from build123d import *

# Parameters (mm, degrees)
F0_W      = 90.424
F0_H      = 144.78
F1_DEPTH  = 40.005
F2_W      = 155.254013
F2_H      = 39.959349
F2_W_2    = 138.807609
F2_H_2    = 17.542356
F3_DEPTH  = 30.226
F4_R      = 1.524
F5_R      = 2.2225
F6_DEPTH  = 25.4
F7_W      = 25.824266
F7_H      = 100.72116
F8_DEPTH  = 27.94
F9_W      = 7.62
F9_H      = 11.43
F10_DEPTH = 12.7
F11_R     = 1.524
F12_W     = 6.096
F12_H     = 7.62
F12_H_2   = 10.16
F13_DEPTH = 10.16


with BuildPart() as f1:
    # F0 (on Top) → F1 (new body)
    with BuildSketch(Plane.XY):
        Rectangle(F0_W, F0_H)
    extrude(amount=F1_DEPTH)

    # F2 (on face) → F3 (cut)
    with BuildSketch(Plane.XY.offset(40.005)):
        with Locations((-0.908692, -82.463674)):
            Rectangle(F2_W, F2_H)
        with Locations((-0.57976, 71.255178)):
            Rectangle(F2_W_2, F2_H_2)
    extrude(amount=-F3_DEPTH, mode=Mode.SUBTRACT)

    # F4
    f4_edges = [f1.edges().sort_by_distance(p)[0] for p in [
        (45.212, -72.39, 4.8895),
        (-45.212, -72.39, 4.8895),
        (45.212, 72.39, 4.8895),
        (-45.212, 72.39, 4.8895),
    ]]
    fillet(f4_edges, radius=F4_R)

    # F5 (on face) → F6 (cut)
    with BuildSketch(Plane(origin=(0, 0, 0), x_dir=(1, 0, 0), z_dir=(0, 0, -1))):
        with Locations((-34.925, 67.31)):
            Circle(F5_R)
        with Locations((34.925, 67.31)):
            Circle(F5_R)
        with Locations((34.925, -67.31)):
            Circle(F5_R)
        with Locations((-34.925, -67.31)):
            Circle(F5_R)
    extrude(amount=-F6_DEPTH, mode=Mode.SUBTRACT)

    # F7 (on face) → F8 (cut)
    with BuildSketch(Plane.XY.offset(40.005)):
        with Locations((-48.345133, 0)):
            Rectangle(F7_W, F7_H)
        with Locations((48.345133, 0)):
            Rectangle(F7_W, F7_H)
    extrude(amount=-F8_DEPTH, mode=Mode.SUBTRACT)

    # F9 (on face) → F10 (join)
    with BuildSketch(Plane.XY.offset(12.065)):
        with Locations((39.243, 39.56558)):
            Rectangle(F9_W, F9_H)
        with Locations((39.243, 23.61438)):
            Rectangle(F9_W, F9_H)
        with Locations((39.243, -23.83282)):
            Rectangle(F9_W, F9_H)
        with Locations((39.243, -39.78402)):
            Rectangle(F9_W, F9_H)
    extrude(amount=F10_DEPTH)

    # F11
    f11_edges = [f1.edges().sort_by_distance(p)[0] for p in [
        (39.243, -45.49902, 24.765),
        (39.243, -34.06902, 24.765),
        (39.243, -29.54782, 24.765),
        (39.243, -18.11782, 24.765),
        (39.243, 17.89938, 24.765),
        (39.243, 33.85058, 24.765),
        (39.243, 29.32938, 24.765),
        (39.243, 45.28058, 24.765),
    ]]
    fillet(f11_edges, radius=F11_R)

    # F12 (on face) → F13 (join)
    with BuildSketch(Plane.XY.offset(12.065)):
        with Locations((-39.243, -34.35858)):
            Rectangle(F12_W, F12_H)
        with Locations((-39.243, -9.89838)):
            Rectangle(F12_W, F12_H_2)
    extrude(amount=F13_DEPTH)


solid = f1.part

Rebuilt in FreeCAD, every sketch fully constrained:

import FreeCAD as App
import Part
import Sketcher
from FreeCAD import Vector
Q = App.Units.Quantity


def edges_at(feature, points):
    """Names of the edges that pass closest to the given points."""
    edges = feature.Shape.Edges
    near = lambda p: min(range(len(edges)), key=lambda i: edges[i].distToShape(Part.Vertex(*p))[0])
    return sorted({f"Edge{near(p) + 1}" for p in points})

doc = App.newDocument("Part")
body = doc.addObject("PartDesign::Body", "Body")

sketch1 = body.newObject("Sketcher::SketchObject", "Sketch")
sketch1.AttachmentSupport = (doc.getObject("XY_Plane"), [""])
sketch1.MapMode = "FlatFace"
sketch1.addGeometry(Part.LineSegment(Vector(-45, 72, 0), Vector(-45, -72, 0)), False)
sketch1.addGeometry(Part.LineSegment(Vector(-45, -72, 0), Vector(45, -72, 0)), False)
sketch1.addGeometry(Part.LineSegment(Vector(45, -72, 0), Vector(45, 72, 0)), False)
sketch1.addGeometry(Part.LineSegment(Vector(45, 72, 0), Vector(-45, 72, 0)), False)
sketch1.addConstraint(Sketcher.Constraint("Coincident", 0, 2, 1, 1))
sketch1.addConstraint(Sketcher.Constraint("Coincident", 1, 2, 2, 1))
sketch1.addConstraint(Sketcher.Constraint("Coincident", 2, 2, 3, 1))
sketch1.addConstraint(Sketcher.Constraint("Coincident", 3, 2, 0, 1))
sketch1.addConstraint(Sketcher.Constraint("Vertical", 0))
sketch1.addConstraint(Sketcher.Constraint("Horizontal", 1))
sketch1.addConstraint(Sketcher.Constraint("Vertical", 2))
sketch1.addConstraint(Sketcher.Constraint("Horizontal", 3))
sketch1.addConstraint(Sketcher.Constraint("Symmetric", 0, 2, 2, 2, -1, 1))
sketch1.addConstraint(Sketcher.Constraint("DistanceY", 0, 2, 0, 1, Q("5.7 in")))
sketch1.addConstraint(Sketcher.Constraint("DistanceX", 1, 1, 1, 2, Q("3.56 in")))
pad1 = body.newObject("PartDesign::Pad", "Pad")
pad1.Profile = sketch1
pad1.Length = Q("1.575 in")

sketch2 = body.newObject("Sketcher::SketchObject", "Sketch001")
sketch2.AttachmentSupport = (doc.getObject("XY_Plane"), [""])
sketch2.MapMode = "FlatFace"
sketch2.AttachmentOffset = App.Placement(Vector(0, 0, 1.575 * 25.4), App.Rotation())
sketch2.addGeometry(Part.LineSegment(Vector(-79, -62, 0), Vector(-79, -102, 0)), False)
sketch2.addGeometry(Part.LineSegment(Vector(-79, -102, 0), Vector(77, -102, 0)), False)
sketch2.addGeometry(Part.LineSegment(Vector(77, -102, 0), Vector(77, -62, 0)), False)
sketch2.addGeometry(Part.LineSegment(Vector(77, -62, 0), Vector(-79, -62, 0)), False)
sketch2.addGeometry(Part.LineSegment(Vector(-70, 80, 0), Vector(-70, 62, 0)), False)
sketch2.addGeometry(Part.LineSegment(Vector(-70, 62, 0), Vector(69, 62, 0)), False)
sketch2.addGeometry(Part.LineSegment(Vector(69, 62, 0), Vector(69, 80, 0)), False)
sketch2.addGeometry(Part.LineSegment(Vector(69, 80, 0), Vector(-70, 80, 0)), False)
sketch2.addConstraint(Sketcher.Constraint("Coincident", 0, 2, 1, 1))
sketch2.addConstraint(Sketcher.Constraint("Coincident", 1, 2, 2, 1))
sketch2.addConstraint(Sketcher.Constraint("Coincident", 2, 2, 3, 1))
sketch2.addConstraint(Sketcher.Constraint("Coincident", 3, 2, 0, 1))
sketch2.addConstraint(Sketcher.Constraint("Coincident", 4, 2, 5, 1))
sketch2.addConstraint(Sketcher.Constraint("Coincident", 5, 2, 6, 1))
sketch2.addConstraint(Sketcher.Constraint("Coincident", 6, 2, 7, 1))
sketch2.addConstraint(Sketcher.Constraint("Coincident", 7, 2, 4, 1))
sketch2.addConstraint(Sketcher.Constraint("Vertical", 0))
sketch2.addConstraint(Sketcher.Constraint("Horizontal", 1))
sketch2.addConstraint(Sketcher.Constraint("Vertical", 2))
sketch2.addConstraint(Sketcher.Constraint("Horizontal", 3))
sketch2.addConstraint(Sketcher.Constraint("Vertical", 4))
sketch2.addConstraint(Sketcher.Constraint("Horizontal", 5))
sketch2.addConstraint(Sketcher.Constraint("Vertical", 6))
sketch2.addConstraint(Sketcher.Constraint("Horizontal", 7))
sketch2.addConstraint(Sketcher.Constraint("DistanceY", 2, 2, -1, 1, Q("2.46 in")))
sketch2.addConstraint(Sketcher.Constraint("DistanceY", -1, 1, 4, 2, Q("2.46 in")))
sketch2.addConstraint(Sketcher.Constraint("DistanceX", 5, 1, 5, 2, Q("138.807609 mm")))
sketch2.addConstraint(Sketcher.Constraint("DistanceY", 0, 2, 0, 1, Q("39.959349 mm")))
sketch2.addConstraint(Sketcher.Constraint("DistanceX", 0, 2, -1, 1, Q("78.535698 mm")))
sketch2.addConstraint(Sketcher.Constraint("DistanceX", 1, 1, 1, 2, Q("155.254013 mm")))
sketch2.addConstraint(Sketcher.Constraint("DistanceY", 4, 2, 4, 1, Q("17.542356 mm")))
sketch2.addConstraint(Sketcher.Constraint("DistanceX", 4, 2, 2, 2, Q("146.701879 mm")))
pocket1 = body.newObject("PartDesign::Pocket", "Pocket")
pocket1.Profile = sketch2
pocket1.Length = Q("1.19 in")
doc.recompute()

fillet = body.newObject("PartDesign::Fillet", "Fillet")
fillet.Base = (pocket1, edges_at(pocket1, [
    (45.212, -72.39, 4.889),
    (-45.212, -72.39, 4.889),
    (45.212, 72.39, 4.889),
    (-45.212, 72.39, 4.889),
]))
fillet.Radius = Q("0.06 in")

sketch3 = body.newObject("Sketcher::SketchObject", "Sketch002")
sketch3.AttachmentSupport = (doc.getObject("XY_Plane"), [""])
sketch3.MapMode = "FlatFace"
sketch3.addGeometry(Part.Circle(Vector(-34.9, -67.3, 0), Vector(0, 0, 1), 2.2), False)
sketch3.addGeometry(Part.Circle(Vector(34.9, -67.3, 0), Vector(0, 0, 1), 2.2), False)
sketch3.addGeometry(Part.Circle(Vector(34.9, 67.3, 0), Vector(0, 0, 1), 2.2), False)
sketch3.addGeometry(Part.Circle(Vector(-34.9, 67.3, 0), Vector(0, 0, 1), 2.2), False)
sketch3.addConstraint(Sketcher.Constraint("Equal", 0, 1))
sketch3.addConstraint(Sketcher.Constraint("Equal", 1, 2))
sketch3.addConstraint(Sketcher.Constraint("Equal", 2, 3))
sketch3.addConstraint(Sketcher.Constraint("Symmetric", 0, 3, 2, 3, -1, 1))
sketch3.addConstraint(Sketcher.Constraint("Symmetric", 1, 3, 3, 3, -1, 1))
sketch3.addConstraint(Sketcher.Constraint("Symmetric", 0, 3, 1, 3, -2))
sketch3.addConstraint(Sketcher.Constraint("Diameter", 0, Q("0.175 in")))
sketch3.addConstraint(Sketcher.Constraint("DistanceY", 1, 3, 2, 3, Q("5.3 in")))
sketch3.addConstraint(Sketcher.Constraint("DistanceX", 0, 3, 1, 3, Q("2.75 in")))
pocket2 = body.newObject("PartDesign::Pocket", "Pocket001")
pocket2.Profile = sketch3
pocket2.Length = Q("1 in")
pocket2.Reversed = True

sketch4 = body.newObject("Sketcher::SketchObject", "Sketch003")
sketch4.AttachmentSupport = (doc.getObject("XY_Plane"), [""])
sketch4.MapMode = "FlatFace"
sketch4.AttachmentOffset = App.Placement(Vector(0, 0, 1.575 * 25.4), App.Rotation())
sketch4.addGeometry(Part.LineSegment(Vector(-61, 50, 0), Vector(-61, -50, 0)), False)
sketch4.addGeometry(Part.LineSegment(Vector(-61, -50, 0), Vector(-35, -50, 0)), False)
sketch4.addGeometry(Part.LineSegment(Vector(-35, -50, 0), Vector(-35, 50, 0)), False)
sketch4.addGeometry(Part.LineSegment(Vector(-35, 50, 0), Vector(-61, 50, 0)), False)
sketch4.addGeometry(Part.LineSegment(Vector(35, 50, 0), Vector(35, -50, 0)), False)
sketch4.addGeometry(Part.LineSegment(Vector(35, -50, 0), Vector(61, -50, 0)), False)
sketch4.addGeometry(Part.LineSegment(Vector(61, -50, 0), Vector(61, 50, 0)), False)
sketch4.addGeometry(Part.LineSegment(Vector(61, 50, 0), Vector(35, 50, 0)), False)
sketch4.addConstraint(Sketcher.Constraint("Coincident", 0, 2, 1, 1))
sketch4.addConstraint(Sketcher.Constraint("Coincident", 1, 2, 2, 1))
sketch4.addConstraint(Sketcher.Constraint("Coincident", 2, 2, 3, 1))
sketch4.addConstraint(Sketcher.Constraint("Coincident", 3, 2, 0, 1))
sketch4.addConstraint(Sketcher.Constraint("Coincident", 4, 2, 5, 1))
sketch4.addConstraint(Sketcher.Constraint("Coincident", 5, 2, 6, 1))
sketch4.addConstraint(Sketcher.Constraint("Coincident", 6, 2, 7, 1))
sketch4.addConstraint(Sketcher.Constraint("Coincident", 7, 2, 4, 1))
sketch4.addConstraint(Sketcher.Constraint("Vertical", 0))
sketch4.addConstraint(Sketcher.Constraint("Horizontal", 1))
sketch4.addConstraint(Sketcher.Constraint("Vertical", 2))
sketch4.addConstraint(Sketcher.Constraint("Horizontal", 3))
sketch4.addConstraint(Sketcher.Constraint("Vertical", 4))
sketch4.addConstraint(Sketcher.Constraint("Horizontal", 5))
sketch4.addConstraint(Sketcher.Constraint("Vertical", 6))
sketch4.addConstraint(Sketcher.Constraint("Horizontal", 7))
sketch4.addConstraint(Sketcher.Constraint("Symmetric", 2, 2, 4, 2, -1, 1))
sketch4.addConstraint(Sketcher.Constraint("Symmetric", 0, 2, 6, 2, -1, 1))
sketch4.addConstraint(Sketcher.Constraint("Horizontal", 1, 2, 4, 2))
sketch4.addConstraint(Sketcher.Constraint("DistanceX", 1, 2, 4, 2, Q("2.79 in")))
sketch4.addConstraint(Sketcher.Constraint("DistanceY", 0, 2, 0, 1, Q("3.9654 in")))
sketch4.addConstraint(Sketcher.Constraint("DistanceX", 1, 1, 1, 2, Q("25.824266 mm")))
pocket3 = body.newObject("PartDesign::Pocket", "Pocket002")
pocket3.Profile = sketch4
pocket3.Length = Q("1.1 in")

sketch5 = body.newObject("Sketcher::SketchObject", "Sketch004")
sketch5.AttachmentSupport = (doc.getObject("XY_Plane"), [""])
sketch5.MapMode = "FlatFace"
sketch5.AttachmentOffset = App.Placement(Vector(0, 0, 0.475 * 25.4), App.Rotation())
sketch5.addGeometry(Part.LineSegment(Vector(35, 45, 0), Vector(35, 34, 0)), False)
sketch5.addGeometry(Part.LineSegment(Vector(35, 34, 0), Vector(43, 34, 0)), False)
sketch5.addGeometry(Part.LineSegment(Vector(43, 34, 0), Vector(43, 45, 0)), False)
sketch5.addGeometry(Part.LineSegment(Vector(43, 45, 0), Vector(35, 45, 0)), False)
sketch5.addGeometry(Part.LineSegment(Vector(35, 29, 0), Vector(35, 18, 0)), False)
sketch5.addGeometry(Part.LineSegment(Vector(35, 18, 0), Vector(43, 18, 0)), False)
sketch5.addGeometry(Part.LineSegment(Vector(43, 18, 0), Vector(43, 29, 0)), False)
sketch5.addGeometry(Part.LineSegment(Vector(43, 29, 0), Vector(35, 29, 0)), False)
sketch5.addGeometry(Part.LineSegment(Vector(35, -18, 0), Vector(35, -30, 0)), False)
sketch5.addGeometry(Part.LineSegment(Vector(35, -30, 0), Vector(43, -30, 0)), False)
sketch5.addGeometry(Part.LineSegment(Vector(43, -30, 0), Vector(43, -18, 0)), False)
sketch5.addGeometry(Part.LineSegment(Vector(43, -18, 0), Vector(35, -18, 0)), False)
sketch5.addGeometry(Part.LineSegment(Vector(35, -34, 0), Vector(35, -45, 0)), False)
sketch5.addGeometry(Part.LineSegment(Vector(35, -45, 0), Vector(43, -45, 0)), False)
sketch5.addGeometry(Part.LineSegment(Vector(43, -45, 0), Vector(43, -34, 0)), False)
sketch5.addGeometry(Part.LineSegment(Vector(43, -34, 0), Vector(35, -34, 0)), False)
sketch5.addConstraint(Sketcher.Constraint("Coincident", 0, 2, 1, 1))
sketch5.addConstraint(Sketcher.Constraint("Coincident", 1, 2, 2, 1))
sketch5.addConstraint(Sketcher.Constraint("Coincident", 2, 2, 3, 1))
sketch5.addConstraint(Sketcher.Constraint("Coincident", 3, 2, 0, 1))
sketch5.addConstraint(Sketcher.Constraint("Coincident", 4, 2, 5, 1))
sketch5.addConstraint(Sketcher.Constraint("Coincident", 5, 2, 6, 1))
sketch5.addConstraint(Sketcher.Constraint("Coincident", 6, 2, 7, 1))
sketch5.addConstraint(Sketcher.Constraint("Coincident", 7, 2, 4, 1))
sketch5.addConstraint(Sketcher.Constraint("Coincident", 8, 2, 9, 1))
sketch5.addConstraint(Sketcher.Constraint("Coincident", 9, 2, 10, 1))
sketch5.addConstraint(Sketcher.Constraint("Coincident", 10, 2, 11, 1))
sketch5.addConstraint(Sketcher.Constraint("Coincident", 11, 2, 8, 1))
sketch5.addConstraint(Sketcher.Constraint("Coincident", 12, 2, 13, 1))
sketch5.addConstraint(Sketcher.Constraint("Coincident", 13, 2, 14, 1))
sketch5.addConstraint(Sketcher.Constraint("Coincident", 14, 2, 15, 1))
sketch5.addConstraint(Sketcher.Constraint("Coincident", 15, 2, 12, 1))
sketch5.addConstraint(Sketcher.Constraint("Vertical", 0))
sketch5.addConstraint(Sketcher.Constraint("Horizontal", 1))
sketch5.addConstraint(Sketcher.Constraint("Vertical", 2))
sketch5.addConstraint(Sketcher.Constraint("Horizontal", 3))
sketch5.addConstraint(Sketcher.Constraint("Vertical", 4))
sketch5.addConstraint(Sketcher.Constraint("Horizontal", 5))
sketch5.addConstraint(Sketcher.Constraint("Vertical", 6))
sketch5.addConstraint(Sketcher.Constraint("Horizontal", 7))
sketch5.addConstraint(Sketcher.Constraint("Vertical", 8))
sketch5.addConstraint(Sketcher.Constraint("Horizontal", 9))
sketch5.addConstraint(Sketcher.Constraint("Vertical", 10))
sketch5.addConstraint(Sketcher.Constraint("Horizontal", 11))
sketch5.addConstraint(Sketcher.Constraint("Vertical", 12))
sketch5.addConstraint(Sketcher.Constraint("Horizontal", 13))
sketch5.addConstraint(Sketcher.Constraint("Vertical", 14))
sketch5.addConstraint(Sketcher.Constraint("Horizontal", 15))
sketch5.addConstraint(Sketcher.Constraint("Vertical", 3, 2, 4, 2))
sketch5.addConstraint(Sketcher.Constraint("Vertical", 2, 2, 5, 2))
sketch5.addConstraint(Sketcher.Constraint("Vertical", 7, 2, 8, 2))
sketch5.addConstraint(Sketcher.Constraint("Vertical", 6, 2, 9, 2))
sketch5.addConstraint(Sketcher.Constraint("Vertical", 11, 2, 12, 2))
sketch5.addConstraint(Sketcher.Constraint("Vertical", 10, 2, 13, 2))
sketch5.addConstraint(Sketcher.Constraint("Equal", 2, 4))
sketch5.addConstraint(Sketcher.Constraint("Equal", 6, 8))
sketch5.addConstraint(Sketcher.Constraint("Equal", 10, 12))
sketch5.addConstraint(Sketcher.Constraint("DistanceX", 1, 1, 1, 2, Q("0.3 in")))
sketch5.addConstraint(Sketcher.Constraint("DistanceY", 0, 2, 0, 1, Q("0.45 in")))
sketch5.addConstraint(Sketcher.Constraint("DistanceX", -1, 1, 0, 2, Q("1.395 in")))
sketch5.addConstraint(Sketcher.Constraint("DistanceY", 4, 2, 0, 2, Q("0.628 in")))
sketch5.addConstraint(Sketcher.Constraint("DistanceY", 8, 2, 4, 2, Q("1.868 in")))
sketch5.addConstraint(Sketcher.Constraint("DistanceY", 12, 2, 8, 2, Q("0.628 in")))
sketch5.addConstraint(Sketcher.Constraint("DistanceY", -1, 1, 0, 2, Q("1.3327 in")))
pad2 = body.newObject("PartDesign::Pad", "Pad001")
pad2.Profile = sketch5
pad2.Length = Q("0.5 in")
doc.recompute()

fillet2 = body.newObject("PartDesign::Fillet", "Fillet001")
fillet2.Base = (pad2, edges_at(pad2, [
    (39.243, -45.499, 24.765),
    (39.243, -34.069, 24.765),
    (39.243, -29.548, 24.765),
    (39.243, -18.118, 24.765),
    (39.243, 17.899, 24.765),
    (39.243, 33.851, 24.765),
    (39.243, 29.329, 24.765),
    (39.243, 45.281, 24.765),
]))
fillet2.Radius = Q("0.06 in")

sketch6 = body.newObject("Sketcher::SketchObject", "Sketch005")
sketch6.AttachmentSupport = (doc.getObject("XY_Plane"), [""])
sketch6.MapMode = "FlatFace"
sketch6.AttachmentOffset = App.Placement(Vector(0, 0, 0.475 * 25.4), App.Rotation())
sketch6.addGeometry(Part.LineSegment(Vector(-42, -31, 0), Vector(-42, -38, 0)), False)
sketch6.addGeometry(Part.LineSegment(Vector(-42, -38, 0), Vector(-36, -38, 0)), False)
sketch6.addGeometry(Part.LineSegment(Vector(-36, -38, 0), Vector(-36, -31, 0)), False)
sketch6.addGeometry(Part.LineSegment(Vector(-36, -31, 0), Vector(-42, -31, 0)), False)
sketch6.addGeometry(Part.LineSegment(Vector(-42, -5, 0), Vector(-42, -15, 0)), False)
sketch6.addGeometry(Part.LineSegment(Vector(-42, -15, 0), Vector(-36, -15, 0)), False)
sketch6.addGeometry(Part.LineSegment(Vector(-36, -15, 0), Vector(-36, -5, 0)), False)
sketch6.addGeometry(Part.LineSegment(Vector(-36, -5, 0), Vector(-42, -5, 0)), False)
sketch6.addConstraint(Sketcher.Constraint("Coincident", 0, 2, 1, 1))
sketch6.addConstraint(Sketcher.Constraint("Coincident", 1, 2, 2, 1))
sketch6.addConstraint(Sketcher.Constraint("Coincident", 2, 2, 3, 1))
sketch6.addConstraint(Sketcher.Constraint("Coincident", 3, 2, 0, 1))
sketch6.addConstraint(Sketcher.Constraint("Coincident", 4, 2, 5, 1))
sketch6.addConstraint(Sketcher.Constraint("Coincident", 5, 2, 6, 1))
sketch6.addConstraint(Sketcher.Constraint("Coincident", 6, 2, 7, 1))
sketch6.addConstraint(Sketcher.Constraint("Coincident", 7, 2, 4, 1))
sketch6.addConstraint(Sketcher.Constraint("Vertical", 0))
sketch6.addConstraint(Sketcher.Constraint("Horizontal", 1))
sketch6.addConstraint(Sketcher.Constraint("Vertical", 2))
sketch6.addConstraint(Sketcher.Constraint("Horizontal", 3))
sketch6.addConstraint(Sketcher.Constraint("Vertical", 4))
sketch6.addConstraint(Sketcher.Constraint("Horizontal", 5))
sketch6.addConstraint(Sketcher.Constraint("Vertical", 6))
sketch6.addConstraint(Sketcher.Constraint("Horizontal", 7))
sketch6.addConstraint(Sketcher.Constraint("Vertical", 3, 2, 4, 2))
sketch6.addConstraint(Sketcher.Constraint("Vertical", 2, 2, 5, 2))
sketch6.addConstraint(Sketcher.Constraint("DistanceY", 0, 2, 0, 1, Q("0.3 in")))
sketch6.addConstraint(Sketcher.Constraint("DistanceY", 4, 2, 4, 1, Q("0.4 in")))
sketch6.addConstraint(Sketcher.Constraint("DistanceX", 1, 1, 1, 2, Q("0.24 in")))
sketch6.addConstraint(Sketcher.Constraint("DistanceX", 0, 2, -1, 1, Q("1.665 in")))
sketch6.addConstraint(Sketcher.Constraint("DistanceY", 3, 2, 4, 2, Q("0.613 in")))
sketch6.addConstraint(Sketcher.Constraint("DistanceY", 0, 2, -1, 1, Q("1.5027 in")))
pad3 = body.newObject("PartDesign::Pad", "Pad002")
pad3.Profile = sketch6
pad3.Length = Q("0.4 in")

doc.recompute()
